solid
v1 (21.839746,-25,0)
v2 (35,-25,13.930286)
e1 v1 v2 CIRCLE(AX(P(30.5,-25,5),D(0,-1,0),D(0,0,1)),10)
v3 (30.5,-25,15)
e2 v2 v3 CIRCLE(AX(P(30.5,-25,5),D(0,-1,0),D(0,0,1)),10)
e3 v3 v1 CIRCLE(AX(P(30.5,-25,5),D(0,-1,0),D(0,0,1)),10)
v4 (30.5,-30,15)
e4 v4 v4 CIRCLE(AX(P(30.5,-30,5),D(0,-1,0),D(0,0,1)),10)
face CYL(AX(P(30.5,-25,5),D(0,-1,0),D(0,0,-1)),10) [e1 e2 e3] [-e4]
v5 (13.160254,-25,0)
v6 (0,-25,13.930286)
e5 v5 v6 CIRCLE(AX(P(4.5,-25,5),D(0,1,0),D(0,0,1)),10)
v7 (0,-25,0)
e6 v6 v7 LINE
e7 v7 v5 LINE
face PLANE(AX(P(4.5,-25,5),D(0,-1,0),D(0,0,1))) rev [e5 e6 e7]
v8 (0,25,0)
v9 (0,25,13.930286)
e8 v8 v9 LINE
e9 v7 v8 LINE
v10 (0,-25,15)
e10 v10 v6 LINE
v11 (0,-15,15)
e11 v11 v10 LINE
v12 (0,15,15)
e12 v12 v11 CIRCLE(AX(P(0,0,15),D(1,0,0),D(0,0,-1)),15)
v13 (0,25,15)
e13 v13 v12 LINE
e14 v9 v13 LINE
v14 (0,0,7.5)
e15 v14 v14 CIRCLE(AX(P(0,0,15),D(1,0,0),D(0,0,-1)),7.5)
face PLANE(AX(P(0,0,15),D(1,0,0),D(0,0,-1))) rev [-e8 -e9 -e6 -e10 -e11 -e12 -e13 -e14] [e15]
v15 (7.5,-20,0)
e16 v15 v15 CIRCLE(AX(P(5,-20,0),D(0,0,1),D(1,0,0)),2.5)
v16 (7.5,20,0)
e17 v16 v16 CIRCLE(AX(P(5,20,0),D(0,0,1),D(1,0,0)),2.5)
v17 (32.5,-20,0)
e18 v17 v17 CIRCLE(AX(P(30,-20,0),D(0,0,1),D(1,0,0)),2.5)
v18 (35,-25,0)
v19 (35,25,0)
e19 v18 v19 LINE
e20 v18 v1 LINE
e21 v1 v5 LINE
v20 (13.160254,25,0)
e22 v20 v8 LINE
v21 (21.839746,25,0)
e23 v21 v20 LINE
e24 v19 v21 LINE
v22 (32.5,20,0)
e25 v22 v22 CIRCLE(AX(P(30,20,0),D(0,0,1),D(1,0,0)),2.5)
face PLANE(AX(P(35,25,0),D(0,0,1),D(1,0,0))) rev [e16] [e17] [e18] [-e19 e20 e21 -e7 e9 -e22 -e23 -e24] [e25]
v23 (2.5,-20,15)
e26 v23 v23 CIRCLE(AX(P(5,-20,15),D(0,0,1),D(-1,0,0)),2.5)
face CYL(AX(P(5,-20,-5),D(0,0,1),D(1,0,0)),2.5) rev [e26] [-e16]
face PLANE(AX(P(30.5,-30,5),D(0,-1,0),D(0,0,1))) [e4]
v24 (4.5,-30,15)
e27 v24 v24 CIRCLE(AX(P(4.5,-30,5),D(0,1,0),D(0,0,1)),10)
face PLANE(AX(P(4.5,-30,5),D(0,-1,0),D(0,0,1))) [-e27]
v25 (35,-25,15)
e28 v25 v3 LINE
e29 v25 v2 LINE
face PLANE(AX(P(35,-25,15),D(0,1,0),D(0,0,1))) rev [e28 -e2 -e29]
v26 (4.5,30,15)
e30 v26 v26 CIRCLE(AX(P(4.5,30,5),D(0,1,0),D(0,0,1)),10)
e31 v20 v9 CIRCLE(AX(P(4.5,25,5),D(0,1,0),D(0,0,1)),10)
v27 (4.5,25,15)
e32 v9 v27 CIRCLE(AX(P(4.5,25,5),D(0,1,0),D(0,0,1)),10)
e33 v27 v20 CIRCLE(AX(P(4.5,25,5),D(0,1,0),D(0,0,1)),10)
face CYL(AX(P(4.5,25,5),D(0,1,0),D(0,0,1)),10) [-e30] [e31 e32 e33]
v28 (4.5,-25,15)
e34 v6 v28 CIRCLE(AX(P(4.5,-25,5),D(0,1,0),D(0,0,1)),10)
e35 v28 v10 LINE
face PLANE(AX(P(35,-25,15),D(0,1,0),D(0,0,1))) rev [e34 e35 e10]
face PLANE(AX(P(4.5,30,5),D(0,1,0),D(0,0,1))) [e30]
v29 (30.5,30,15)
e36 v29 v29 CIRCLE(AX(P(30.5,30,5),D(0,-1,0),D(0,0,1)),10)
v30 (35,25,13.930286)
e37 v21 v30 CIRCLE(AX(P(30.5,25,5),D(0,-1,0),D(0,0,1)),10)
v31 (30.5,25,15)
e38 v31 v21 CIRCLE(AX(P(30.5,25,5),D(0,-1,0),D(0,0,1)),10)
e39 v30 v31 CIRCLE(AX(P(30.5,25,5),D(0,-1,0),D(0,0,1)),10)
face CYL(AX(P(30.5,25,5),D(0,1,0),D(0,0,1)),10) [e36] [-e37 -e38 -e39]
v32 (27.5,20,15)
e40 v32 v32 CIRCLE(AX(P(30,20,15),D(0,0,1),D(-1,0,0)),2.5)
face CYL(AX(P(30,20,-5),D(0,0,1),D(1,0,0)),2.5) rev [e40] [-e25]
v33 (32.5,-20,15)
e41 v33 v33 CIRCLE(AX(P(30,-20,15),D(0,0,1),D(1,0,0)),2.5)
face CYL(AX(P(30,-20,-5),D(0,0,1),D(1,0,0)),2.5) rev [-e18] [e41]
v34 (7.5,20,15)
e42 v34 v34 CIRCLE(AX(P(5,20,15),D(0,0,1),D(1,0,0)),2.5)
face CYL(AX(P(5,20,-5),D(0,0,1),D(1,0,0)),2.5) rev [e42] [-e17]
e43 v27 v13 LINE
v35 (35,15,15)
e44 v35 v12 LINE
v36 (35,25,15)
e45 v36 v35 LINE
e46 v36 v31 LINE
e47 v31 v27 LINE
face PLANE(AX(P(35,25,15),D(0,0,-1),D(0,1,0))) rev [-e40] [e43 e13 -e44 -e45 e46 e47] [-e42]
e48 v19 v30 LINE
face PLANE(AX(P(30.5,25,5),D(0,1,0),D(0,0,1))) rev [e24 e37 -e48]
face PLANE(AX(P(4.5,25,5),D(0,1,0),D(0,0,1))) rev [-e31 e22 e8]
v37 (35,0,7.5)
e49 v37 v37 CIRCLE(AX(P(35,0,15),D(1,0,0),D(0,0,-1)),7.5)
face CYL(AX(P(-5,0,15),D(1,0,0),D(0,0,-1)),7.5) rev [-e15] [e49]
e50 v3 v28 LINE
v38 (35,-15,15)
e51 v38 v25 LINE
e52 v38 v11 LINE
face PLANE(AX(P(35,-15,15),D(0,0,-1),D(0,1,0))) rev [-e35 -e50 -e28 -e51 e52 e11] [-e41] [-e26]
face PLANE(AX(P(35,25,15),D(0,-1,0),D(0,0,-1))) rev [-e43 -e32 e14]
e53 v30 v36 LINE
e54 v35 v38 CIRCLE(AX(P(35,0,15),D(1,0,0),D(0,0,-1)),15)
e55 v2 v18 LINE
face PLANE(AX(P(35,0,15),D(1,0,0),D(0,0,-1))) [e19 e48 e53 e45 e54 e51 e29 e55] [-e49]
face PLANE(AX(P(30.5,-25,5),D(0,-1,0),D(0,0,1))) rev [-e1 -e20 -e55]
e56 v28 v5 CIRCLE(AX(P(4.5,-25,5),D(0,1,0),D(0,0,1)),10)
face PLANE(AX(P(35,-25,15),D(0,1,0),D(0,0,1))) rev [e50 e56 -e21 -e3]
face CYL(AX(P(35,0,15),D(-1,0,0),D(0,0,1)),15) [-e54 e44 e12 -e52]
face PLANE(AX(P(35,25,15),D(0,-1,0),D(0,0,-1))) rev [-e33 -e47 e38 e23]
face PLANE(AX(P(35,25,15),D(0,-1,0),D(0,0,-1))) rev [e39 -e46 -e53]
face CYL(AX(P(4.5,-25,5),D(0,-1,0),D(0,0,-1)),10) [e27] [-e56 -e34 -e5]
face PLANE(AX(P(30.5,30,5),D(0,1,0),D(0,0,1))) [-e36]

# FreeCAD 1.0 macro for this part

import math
import FreeCAD as App
import Part
import Sketcher

doc = App.newDocument("Part")
params = doc.addObject("Spreadsheet::Sheet", "Params")
for row, (alias, value) in enumerate([
    ("sketch1_radius", "15 mm"),
    ("sketch1_width", "10 mm"),
    ("sketch1_height", "15 mm"),
    ("pad1_length", "35 mm"),
    ("sketch2_diameter", "15 mm"),
    ("pocket1_length", "40 mm"),
    ("sketch3_diameter", "5 mm"),
    ("pad2_length", "5 mm"),
    ("sketch4_diameter", "20 mm"),
    ("pad3_length", "5 mm"),
    ("sketch5_diameter", "20 mm"),
    ("pad4_length", "5 mm"),
    ("sketch6_diameter", "5 mm"),
], start=1):
    params.set(f"A{row}", alias)
    params.set(f"B{row}", "=" + value)
    params.setAlias(f"B{row}", alias)

body = doc.addObject("PartDesign::Body", "Body")

# Sketch on YZ plane
sketch1 = body.newObject("Sketcher::SketchObject", "Sketch")
sketch1.AttachmentSupport = (doc.getObject("YZ_Plane"), [""])
sketch1.MapMode = "FlatFace"
sketch1.addGeometry([
    Part.LineSegment(App.Vector(-15, 15, 0), App.Vector(-25, 15, 0)),  # 0
    Part.LineSegment(App.Vector(-25, 15, 0), App.Vector(-25, 0, 0)),  # 1
    Part.LineSegment(App.Vector(-25, 0, 0), App.Vector(25, 0, 0)),  # 2
    Part.LineSegment(App.Vector(25, 0, 0), App.Vector(25, 15, 0)),  # 3
    Part.LineSegment(App.Vector(25, 15, 0), App.Vector(15, 15, 0)),  # 4
    Part.ArcOfCircle(Part.Circle(App.Vector(0, 15, 0), App.Vector(0, 0, 1), 15), math.radians(0), math.radians(180)),  # 5
], False)
sketch1.addConstraint([
    Sketcher.Constraint("Coincident", 0, 2, 1, 1),
    Sketcher.Constraint("Coincident", 1, 2, 2, 1),
    Sketcher.Constraint("Coincident", 2, 2, 3, 1),
    Sketcher.Constraint("Coincident", 3, 2, 4, 1),
    Sketcher.Constraint("Coincident", 4, 2, 5, 1),
    Sketcher.Constraint("Coincident", 5, 2, 0, 1),
    Sketcher.Constraint("Horizontal", 0),
    Sketcher.Constraint("Vertical", 1),
    Sketcher.Constraint("Horizontal", 2),
    Sketcher.Constraint("Vertical", 3),
    Sketcher.Constraint("Horizontal", 4),
    Sketcher.Constraint("Symmetric", 1, 2, 2, 2, -1, 1),
    Sketcher.Constraint("Symmetric", 4, 2, 5, 2, -2),
    Sketcher.Constraint("Horizontal", 5, 3, 0, 2),
    Sketcher.Constraint("Radius", 5, 15.0),
    Sketcher.Constraint("DistanceX", 0, 2, 0, 1, 10.0),
    Sketcher.Constraint("DistanceY", 1, 2, 1, 1, 15.0),
])
sketch1.setExpression("Constraints[14]", "Params.sketch1_radius")
sketch1.setExpression("Constraints[15]", "Params.sketch1_width")
sketch1.setExpression("Constraints[16]", "Params.sketch1_height")
pad1 = body.newObject("PartDesign::Pad", "Pad")
pad1.Profile = sketch1
pad1.setExpression("Length", "Params.pad1_length")

# Sketch on YZ plane
sketch2 = body.newObject("Sketcher::SketchObject", "Sketch001")
sketch2.AttachmentSupport = (doc.getObject("YZ_Plane"), [""])
sketch2.MapMode = "FlatFace"
sketch2.AttachmentOffset = App.Placement(App.Vector(0, 0, 35), App.Rotation())
sketch2.addGeometry(Part.Circle(App.Vector(0, 15, 0), App.Vector(0, 0, 1), 7.5), False)
sketch2.addConstraint([
    Sketcher.Constraint("PointOnObject", 0, 3, -2),
    Sketcher.Constraint("Diameter", 0, 15.0),
    Sketcher.Constraint("DistanceY", -1, 1, 0, 3, 15.0),
])
sketch2.setExpression("Constraints[1]", "Params.sketch2_diameter")
pocket1 = body.newObject("PartDesign::Pocket", "Pocket")
pocket1.Profile = sketch2
pocket1.setExpression("Length", "Params.pocket1_length")

# Sketch on XZ plane
sketch3 = body.newObject("Sketcher::SketchObject", "Sketch002")
sketch3.AttachmentSupport = (doc.getObject("XZ_Plane"), [""])
sketch3.MapMode = "FlatFace"
sketch3.AttachmentOffset = App.Placement(App.Vector(0, 0, -25), App.Rotation())
sketch3.addGeometry([
    Part.Circle(App.Vector(4.5, 5, 0), App.Vector(0, 0, 1), 2.5),
    Part.Circle(App.Vector(30.5, 5, 0), App.Vector(0, 0, 1), 2.5),
], False)
sketch3.addConstraint([
    Sketcher.Constraint("Equal", 0, 1),
    Sketcher.Constraint("Horizontal", 0, 3, 1, 3),
    Sketcher.Constraint("Diameter", 0, 5.0),
    Sketcher.Constraint("DistanceY", -1, 1, 0, 3, 5.0),
    Sketcher.Constraint("DistanceX", 0, 3, 1, 3, 26.0),
    Sketcher.Constraint("DistanceX", -1, 1, 0, 3, 4.5),
])
sketch3.setExpression("Constraints[2]", "Params.sketch3_diameter")
pad2 = body.newObject("PartDesign::Pad", "Pad001")
pad2.Profile = sketch3
pad2.setExpression("Length", "Params.pad2_length")
pad2.Reversed = True
doc.recompute()

mirrored = body.newObject("PartDesign::Mirrored", "Mirrored")
mirrored.Originals = [pad2]
mirrored.MirrorPlane = (doc.getObject("XZ_Plane"), [""])
body.Tip = mirrored

# Sketch on XZ plane
sketch4 = body.newObject("Sketcher::SketchObject", "Sketch003")
sketch4.AttachmentSupport = (doc.getObject("XZ_Plane"), [""])
sketch4.MapMode = "FlatFace"
sketch4.AttachmentOffset = App.Placement(App.Vector(0, 0, -30), App.Rotation())
sketch4.addGeometry(Part.Circle(App.Vector(4.5, 5, 0), App.Vector(0, 0, 1), 10), False)
sketch4.addConstraint([
    Sketcher.Constraint("Diameter", 0, 20.0),
    Sketcher.Constraint("DistanceY", -1, 1, 0, 3, 5.0),
    Sketcher.Constraint("DistanceX", -1, 1, 0, 3, 4.5),
])
sketch4.setExpression("Constraints[0]", "Params.sketch4_diameter")
pad3 = body.newObject("PartDesign::Pad", "Pad002")
pad3.Profile = sketch4
pad3.setExpression("Length", "Params.pad3_length")
doc.recompute()

mirrored2 = body.newObject("PartDesign::Mirrored", "Mirrored001")
mirrored2.Originals = [pad3]
mirrored2.MirrorPlane = (doc.getObject("XZ_Plane"), [""])
body.Tip = mirrored2
doc.recompute()

datumplane = body.newObject("PartDesign::Plane", "DatumPlane")
datumplane.AttachmentSupport = (doc.getObject("YZ_Plane"), [""])
datumplane.MapMode = "FlatFace"
datumplane.AttachmentOffset = App.Placement(App.Vector(0, 0, 17.5), App.Rotation())
mirrored3 = body.newObject("PartDesign::Mirrored", "Mirrored002")
mirrored3.Originals = [pad3]
mirrored3.MirrorPlane = (datumplane, [""])
body.Tip = mirrored3

# Sketch on XZ plane
sketch5 = body.newObject("Sketcher::SketchObject", "Sketch004")
sketch5.AttachmentSupport = (doc.getObject("XZ_Plane"), [""])
sketch5.MapMode = "FlatFace"
sketch5.AttachmentOffset = App.Placement(App.Vector(0, 0, 30), App.Rotation())
sketch5.addGeometry(Part.Circle(App.Vector(30.5, 5, 0), App.Vector(0, 0, 1), 10), False)
sketch5.addConstraint([
    Sketcher.Constraint("Diameter", 0, 20.0),
    Sketcher.Constraint("DistanceY", -1, 1, 0, 3, 5.0),
    Sketcher.Constraint("DistanceX", -1, 1, 0, 3, 30.5),
])
sketch5.setExpression("Constraints[0]", "Params.sketch5_diameter")
pad4 = body.newObject("PartDesign::Pad", "Pad003")
pad4.Profile = sketch5
pad4.setExpression("Length", "Params.pad4_length")
pad4.Reversed = True

# Sketch on XY plane
sketch6 = body.newObject("Sketcher::SketchObject", "Sketch005")
sketch6.AttachmentSupport = (doc.getObject("XY_Plane"), [""])
sketch6.MapMode = "FlatFace"
sketch6.AttachmentOffset = App.Placement(App.Vector(0, 0, 15), App.Rotation())
sketch6.addGeometry([
    Part.Circle(App.Vector(5, 20, 0), App.Vector(0, 0, 1), 2.5),
    Part.Circle(App.Vector(30, 20, 0), App.Vector(0, 0, 1), 2.5),
    Part.Circle(App.Vector(30, -20, 0), App.Vector(0, 0, 1), 2.5),
    Part.Circle(App.Vector(5, -20, 0), App.Vector(0, 0, 1), 2.5),
], False)
sketch6.addConstraint([
    Sketcher.Constraint("Equal", 0, 1),
    Sketcher.Constraint("Equal", 1, 2),
    Sketcher.Constraint("Equal", 2, 3),
    Sketcher.Constraint("Symmetric", 1, 3, 2, 3, -1),
    Sketcher.Constraint("Symmetric", 0, 3, 3, 3, -1),
    Sketcher.Constraint("Horizontal", 0, 3, 1, 3),
    Sketcher.Constraint("Diameter", 0, 5.0),
    Sketcher.Constraint("DistanceX", -1, 1, 0, 3, 5.0),
    Sketcher.Constraint("DistanceY", -1, 1, 0, 3, 20.0),
    Sketcher.Constraint("DistanceX", -1, 1, 1, 3, 30.0),
])
sketch6.setExpression("Constraints[6]", "Params.sketch6_diameter")
pocket2 = body.newObject("PartDesign::Pocket", "Pocket001")
pocket2.Profile = sketch6
pocket2.Type = "ThroughAll"

doc.recompute()
